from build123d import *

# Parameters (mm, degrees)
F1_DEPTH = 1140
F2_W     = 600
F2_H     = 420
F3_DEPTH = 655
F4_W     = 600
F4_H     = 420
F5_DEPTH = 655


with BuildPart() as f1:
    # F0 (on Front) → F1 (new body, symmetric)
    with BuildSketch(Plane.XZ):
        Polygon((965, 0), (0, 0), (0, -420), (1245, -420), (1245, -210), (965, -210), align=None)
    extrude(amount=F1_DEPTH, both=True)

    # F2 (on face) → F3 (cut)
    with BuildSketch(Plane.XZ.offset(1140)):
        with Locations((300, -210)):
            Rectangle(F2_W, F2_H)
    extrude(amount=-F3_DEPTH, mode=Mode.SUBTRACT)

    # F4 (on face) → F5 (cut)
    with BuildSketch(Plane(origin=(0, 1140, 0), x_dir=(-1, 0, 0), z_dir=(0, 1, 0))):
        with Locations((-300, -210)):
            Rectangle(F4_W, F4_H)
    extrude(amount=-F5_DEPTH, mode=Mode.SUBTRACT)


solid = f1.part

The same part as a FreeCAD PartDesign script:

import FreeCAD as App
import Part
import Sketcher
from FreeCAD import Vector


def add_polygon(sketch, points):
    """Adds a closed chain of lines whose ends are joined by coincident constraints."""
    first, n = sketch.GeometryCount, len(points)
    for a, b in zip(points, points[1:] + points[:1]):
        sketch.addGeometry(Part.LineSegment(App.Vector(*a, 0), App.Vector(*b, 0)), False)
    for i in range(n):
        sketch.addConstraint(Sketcher.Constraint("Coincident", first + i, 2, first + (i + 1) % n, 1))

doc = App.newDocument("Part")
body = doc.addObject("PartDesign::Body", "Body")

# Sketch on XZ plane
sketch1 = body.newObject("Sketcher::SketchObject", "Sketch")
sketch1.AttachmentSupport = (doc.getObject("XZ_Plane"), [""])
sketch1.MapMode = "FlatFace"
add_polygon(sketch1, [(965, 0), (0, 0), (0, -420), (1245, -420), (1245, -210), (965, -210)])  # lines 0-5
sketch1.addConstraint(Sketcher.Constraint("Horizontal", 0))
sketch1.addConstraint(Sketcher.Constraint("Vertical", 1))
sketch1.addConstraint(Sketcher.Constraint("Horizontal", 2))
sketch1.addConstraint(Sketcher.Constraint("Vertical", 3))
sketch1.addConstraint(Sketcher.Constraint("Horizontal", 4))
sketch1.addConstraint(Sketcher.Constraint("Vertical", 5))
sketch1.addConstraint(Sketcher.Constraint("Coincident", 0, 2, -1, 1))
sketch1.addConstraint(Sketcher.Constraint("Equal", 3, 5))
sketch1.addConstraint(Sketcher.Constraint("DistanceX", 0, 2, 0, 1, 965.0))
sketch1.addConstraint(Sketcher.Constraint("DistanceX", 2, 1, 2, 2, 1245.0))
sketch1.addConstraint(Sketcher.Constraint("DistanceY", 1, 2, 1, 1, 420.0))
pad1 = body.newObject("PartDesign::Pad", "Pad")
pad1.Profile = sketch1
pad1.Length = 2280
pad1.Midplane = True

# Sketch on XZ plane
sketch2 = body.newObject("Sketcher::SketchObject", "Sketch001")
sketch2.AttachmentSupport = (doc.getObject("XZ_Plane"), [""])
sketch2.MapMode = "FlatFace"
sketch2.AttachmentOffset = App.Placement(Vector(0, 0, 1140), App.Rotation())
add_polygon(sketch2, [(0, 0), (0, -420), (600, -420), (600, 0)])  # lines 0-3
sketch2.addConstraint(Sketcher.Constraint("Vertical", 0))
sketch2.addConstraint(Sketcher.Constraint("Horizontal", 1))
sketch2.addConstraint(Sketcher.Constraint("Vertical", 2))
sketch2.addConstraint(Sketcher.Constraint("Horizontal", 3))
sketch2.addConstraint(Sketcher.Constraint("Coincident", 3, 2, -1, 1))
sketch2.addConstraint(Sketcher.Constraint("DistanceX", 1, 1, 1, 2, 600.0))
sketch2.addConstraint(Sketcher.Constraint("DistanceY", 0, 2, 0, 1, 420.0))
pocket1 = body.newObject("PartDesign::Pocket", "Pocket")
pocket1.Profile = sketch2
pocket1.Length = 655

# Sketch on XZ plane
sketch3 = body.newObject("Sketcher::SketchObject", "Sketch002")
sketch3.AttachmentSupport = (doc.getObject("XZ_Plane"), [""])
sketch3.MapMode = "FlatFace"
sketch3.AttachmentOffset = App.Placement(Vector(0, 0, -1140), App.Rotation())
add_polygon(sketch3, [(600, 0), (600, -420), (0, -420), (0, 0)])  # lines 0-3
sketch3.addConstraint(Sketcher.Constraint("Vertical", 0))
sketch3.addConstraint(Sketcher.Constraint("Horizontal", 1))
sketch3.addConstraint(Sketcher.Constraint("Vertical", 2))
sketch3.addConstraint(Sketcher.Constraint("Horizontal", 3))
sketch3.addConstraint(Sketcher.Constraint("Coincident", 2, 2, -1, 1))
sketch3.addConstraint(Sketcher.Constraint("DistanceX", 1, 2, 1, 1, 600.0))
sketch3.addConstraint(Sketcher.Constraint("DistanceY", 0, 2, 0, 1, 420.0))
pocket2 = body.newObject("PartDesign::Pocket", "Pocket001")
pocket2.Profile = sketch3
pocket2.Length = 655
pocket2.Reversed = True

doc.recompute()
